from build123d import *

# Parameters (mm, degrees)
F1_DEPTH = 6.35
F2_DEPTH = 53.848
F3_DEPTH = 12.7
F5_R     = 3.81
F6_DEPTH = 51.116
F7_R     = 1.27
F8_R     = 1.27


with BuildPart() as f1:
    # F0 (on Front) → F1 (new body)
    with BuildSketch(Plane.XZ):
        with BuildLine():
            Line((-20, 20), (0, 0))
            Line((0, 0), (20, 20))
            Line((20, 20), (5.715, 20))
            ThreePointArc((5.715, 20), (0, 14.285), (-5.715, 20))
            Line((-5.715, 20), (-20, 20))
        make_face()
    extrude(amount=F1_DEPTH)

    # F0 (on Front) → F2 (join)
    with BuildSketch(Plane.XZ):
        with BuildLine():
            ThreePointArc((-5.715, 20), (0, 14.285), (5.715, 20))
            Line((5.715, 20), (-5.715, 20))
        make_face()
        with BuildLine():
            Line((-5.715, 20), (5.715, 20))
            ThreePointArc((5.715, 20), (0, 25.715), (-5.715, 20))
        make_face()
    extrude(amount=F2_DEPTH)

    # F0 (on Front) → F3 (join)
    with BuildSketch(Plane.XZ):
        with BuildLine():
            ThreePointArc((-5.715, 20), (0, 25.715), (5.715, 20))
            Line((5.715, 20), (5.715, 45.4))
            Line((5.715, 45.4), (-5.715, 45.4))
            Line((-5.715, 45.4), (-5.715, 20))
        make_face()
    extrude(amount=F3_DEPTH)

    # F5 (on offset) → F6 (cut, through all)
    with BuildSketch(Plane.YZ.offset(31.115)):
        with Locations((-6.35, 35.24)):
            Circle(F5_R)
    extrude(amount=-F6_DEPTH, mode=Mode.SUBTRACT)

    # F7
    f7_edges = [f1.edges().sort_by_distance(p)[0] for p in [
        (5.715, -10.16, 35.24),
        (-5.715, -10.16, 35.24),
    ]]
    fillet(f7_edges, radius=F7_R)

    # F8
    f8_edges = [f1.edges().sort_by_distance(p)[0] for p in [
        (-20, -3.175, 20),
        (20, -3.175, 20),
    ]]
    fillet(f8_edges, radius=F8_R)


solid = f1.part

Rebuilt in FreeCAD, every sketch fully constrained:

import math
import FreeCAD as App
import Part
import Sketcher
from FreeCAD import Vector
Q = App.Units.Quantity


def edges_at(feature, points):
    """Names of the edges that pass closest to the given points."""
    edges = feature.Shape.Edges
    near = lambda p: min(range(len(edges)), key=lambda i: edges[i].distToShape(Part.Vertex(*p))[0])
    return sorted({f"Edge{near(p) + 1}" for p in points})

doc = App.newDocument("Part")
params = doc.addObject("Spreadsheet::Sheet", "Params")
for row, (alias, value) in enumerate([
    ("sketch1_radius", "0.225 in"),
    ("pad1_length", "0.25 in"),
    ("sketch2_diameter", "0.45 in"),
    ("pad2_length", "2.12 in"),
    ("sketch3_height", "1 in"),
    ("sketch3_radius", "0.225 in"),
    ("pad3_length", "0.5 in"),
    ("sketch4_diameter", "0.3 in"),
    ("fillet_radius", "0.05 in"),
    ("fillet2_radius", "0.05 in"),
], start=1):
    params.set(f"A{row}", alias)
    params.set(f"B{row}", "=" + value)
    params.setAlias(f"B{row}", alias)

body = doc.addObject("PartDesign::Body", "Body")

sketch1 = body.newObject("Sketcher::SketchObject", "Sketch")
sketch1.AttachmentSupport = (doc.getObject("XZ_Plane"), [""])
sketch1.MapMode = "FlatFace"
sketch1.addGeometry(Part.LineSegment(Vector(-20, 20, 0), Vector(0, 0, 0)), False)
sketch1.addGeometry(Part.LineSegment(Vector(0, 0, 0), Vector(20, 20, 0)), False)
sketch1.addGeometry(Part.LineSegment(Vector(20, 20, 0), Vector(6, 20, 0)), False)
sketch1.addGeometry(Part.ArcOfCircle(Part.Circle(Vector(0, 20, 0), Vector(0, 0, 1), 6), math.radians(180), math.radians(360)), False)
sketch1.addGeometry(Part.LineSegment(Vector(-6, 20, 0), Vector(-20, 20, 0)), False)
sketch1.addConstraint(Sketcher.Constraint("Coincident", 0, 2, 1, 1))
sketch1.addConstraint(Sketcher.Constraint("Coincident", 1, 2, 2, 1))
sketch1.addConstraint(Sketcher.Constraint("Coincident", 2, 2, 3, 2))
sketch1.addConstraint(Sketcher.Constraint("Coincident", 3, 1, 4, 1))
sketch1.addConstraint(Sketcher.Constraint("Coincident", 4, 2, 0, 1))
sketch1.addConstraint(Sketcher.Constraint("Horizontal", 2))
sketch1.addConstraint(Sketcher.Constraint("Horizontal", 4))
sketch1.addConstraint(Sketcher.Constraint("Coincident", 0, 2, -1, 1))
sketch1.addConstraint(Sketcher.Constraint("Symmetric", 2, 2, 3, 1, -2))
sketch1.addConstraint(Sketcher.Constraint("Perpendicular", 0, 1))
sketch1.addConstraint(Sketcher.Constraint("Horizontal", 3, 3, 1, 2))
sketch1.addConstraint(Sketcher.Constraint("Equal", 2, 4))
sketch1.addConstraint(Sketcher.Constraint("Radius", 3, Q("0.225 in")))
sketch1.addConstraint(Sketcher.Constraint("DistanceX", 2, 2, 2, 1, Q("14.285 mm")))
sketch1.setExpression("Constraints[12]", "Params.sketch1_radius")
pad1 = body.newObject("PartDesign::Pad", "Pad")
pad1.Profile = sketch1
pad1.setExpression("Length", "Params.pad1_length")

sketch2 = body.newObject("Sketcher::SketchObject", "Sketch001")
sketch2.AttachmentSupport = (doc.getObject("XZ_Plane"), [""])
sketch2.MapMode = "FlatFace"
sketch2.addGeometry(Part.Circle(Vector(0, 20, 0), Vector(0, 0, 1), 6), False)
sketch2.addConstraint(Sketcher.Constraint("PointOnObject", 0, 3, -2))
sketch2.addConstraint(Sketcher.Constraint("Diameter", 0, Q("0.45 in")))
sketch2.addConstraint(Sketcher.Constraint("DistanceY", -1, 1, 0, 3, Q("20 mm")))
sketch2.setExpression("Constraints[1]", "Params.sketch2_diameter")
pad2 = body.newObject("PartDesign::Pad", "Pad001")
pad2.Profile = sketch2
pad2.setExpression("Length", "Params.pad2_length")

sketch3 = body.newObject("Sketcher::SketchObject", "Sketch002")
sketch3.AttachmentSupport = (doc.getObject("XZ_Plane"), [""])
sketch3.MapMode = "FlatFace"
sketch3.addGeometry(Part.ArcOfCircle(Part.Circle(Vector(0, 20, 0), Vector(0, 0, 1), 6), math.radians(0), math.radians(180)), False)
sketch3.addGeometry(Part.LineSegment(Vector(6, 20, 0), Vector(6, 45, 0)), False)
sketch3.addGeometry(Part.LineSegment(Vector(6, 45, 0), Vector(-6, 45, 0)), False)
sketch3.addGeometry(Part.LineSegment(Vector(-6, 45, 0), Vector(-6, 20, 0)), False)
sketch3.addConstraint(Sketcher.Constraint("Tangent", 0, 1, 1, 1))
sketch3.addConstraint(Sketcher.Constraint("Coincident", 1, 2, 2, 1))
sketch3.addConstraint(Sketcher.Constraint("Coincident", 2, 2, 3, 1))
sketch3.addConstraint(Sketcher.Constraint("Tangent", 3, 2, 0, 2))
sketch3.addConstraint(Sketcher.Constraint("Vertical", 1))
sketch3.addConstraint(Sketcher.Constraint("Horizontal", 2))
sketch3.addConstraint(Sketcher.Constraint("Vertical", 3))
sketch3.addConstraint(Sketcher.Constraint("PointOnObject", 0, 3, -2))
sketch3.addConstraint(Sketcher.Constraint("DistanceY", 1, 1, 1, 2, Q("1 in")))
sketch3.addConstraint(Sketcher.Constraint("Radius", 0, Q("0.225 in")))
sketch3.addConstraint(Sketcher.Constraint("DistanceY", -1, 1, 0, 3, Q("20 mm")))
sketch3.setExpression("Constraints[8]", "Params.sketch3_height")
sketch3.setExpression("Constraints[9]", "Params.sketch3_radius")
pad3 = body.newObject("PartDesign::Pad", "Pad002")
pad3.Profile = sketch3
pad3.setExpression("Length", "Params.pad3_length")

sketch4 = body.newObject("Sketcher::SketchObject", "Sketch003")
sketch4.AttachmentSupport = (doc.getObject("YZ_Plane"), [""])
sketch4.MapMode = "FlatFace"
sketch4.AttachmentOffset = App.Placement(Vector(0, 0, 1.225 * 25.4), App.Rotation())
sketch4.addGeometry(Part.Circle(Vector(-6.3, 35.2, 0), Vector(0, 0, 1), 3.8), False)
sketch4.addConstraint(Sketcher.Constraint("Diameter", 0, Q("0.3 in")))
sketch4.addConstraint(Sketcher.Constraint("DistanceX", 0, 3, -1, 1, Q("0.25 in")))
sketch4.addConstraint(Sketcher.Constraint("DistanceY", -1, 1, 0, 3, Q("35.24 mm")))
sketch4.setExpression("Constraints[0]", "Params.sketch4_diameter")
pocket1 = body.newObject("PartDesign::Pocket", "Pocket")
pocket1.Profile = sketch4
pocket1.Type = "ThroughAll"
doc.recompute()

fillet = body.newObject("PartDesign::Fillet", "Fillet")
fillet.Base = (pocket1, edges_at(pocket1, [(5.715, -10.16, 35.24), (-5.715, -10.16, 35.24)]))
fillet.setExpression("Radius", "Params.fillet_radius")
doc.recompute()

fillet2 = body.newObject("PartDesign::Fillet", "Fillet001")
fillet2.Base = (fillet, edges_at(fillet, [(-20, -3.175, 20), (20, -3.175, 20)]))
fillet2.setExpression("Radius", "Params.fillet2_radius")

doc.recompute()
